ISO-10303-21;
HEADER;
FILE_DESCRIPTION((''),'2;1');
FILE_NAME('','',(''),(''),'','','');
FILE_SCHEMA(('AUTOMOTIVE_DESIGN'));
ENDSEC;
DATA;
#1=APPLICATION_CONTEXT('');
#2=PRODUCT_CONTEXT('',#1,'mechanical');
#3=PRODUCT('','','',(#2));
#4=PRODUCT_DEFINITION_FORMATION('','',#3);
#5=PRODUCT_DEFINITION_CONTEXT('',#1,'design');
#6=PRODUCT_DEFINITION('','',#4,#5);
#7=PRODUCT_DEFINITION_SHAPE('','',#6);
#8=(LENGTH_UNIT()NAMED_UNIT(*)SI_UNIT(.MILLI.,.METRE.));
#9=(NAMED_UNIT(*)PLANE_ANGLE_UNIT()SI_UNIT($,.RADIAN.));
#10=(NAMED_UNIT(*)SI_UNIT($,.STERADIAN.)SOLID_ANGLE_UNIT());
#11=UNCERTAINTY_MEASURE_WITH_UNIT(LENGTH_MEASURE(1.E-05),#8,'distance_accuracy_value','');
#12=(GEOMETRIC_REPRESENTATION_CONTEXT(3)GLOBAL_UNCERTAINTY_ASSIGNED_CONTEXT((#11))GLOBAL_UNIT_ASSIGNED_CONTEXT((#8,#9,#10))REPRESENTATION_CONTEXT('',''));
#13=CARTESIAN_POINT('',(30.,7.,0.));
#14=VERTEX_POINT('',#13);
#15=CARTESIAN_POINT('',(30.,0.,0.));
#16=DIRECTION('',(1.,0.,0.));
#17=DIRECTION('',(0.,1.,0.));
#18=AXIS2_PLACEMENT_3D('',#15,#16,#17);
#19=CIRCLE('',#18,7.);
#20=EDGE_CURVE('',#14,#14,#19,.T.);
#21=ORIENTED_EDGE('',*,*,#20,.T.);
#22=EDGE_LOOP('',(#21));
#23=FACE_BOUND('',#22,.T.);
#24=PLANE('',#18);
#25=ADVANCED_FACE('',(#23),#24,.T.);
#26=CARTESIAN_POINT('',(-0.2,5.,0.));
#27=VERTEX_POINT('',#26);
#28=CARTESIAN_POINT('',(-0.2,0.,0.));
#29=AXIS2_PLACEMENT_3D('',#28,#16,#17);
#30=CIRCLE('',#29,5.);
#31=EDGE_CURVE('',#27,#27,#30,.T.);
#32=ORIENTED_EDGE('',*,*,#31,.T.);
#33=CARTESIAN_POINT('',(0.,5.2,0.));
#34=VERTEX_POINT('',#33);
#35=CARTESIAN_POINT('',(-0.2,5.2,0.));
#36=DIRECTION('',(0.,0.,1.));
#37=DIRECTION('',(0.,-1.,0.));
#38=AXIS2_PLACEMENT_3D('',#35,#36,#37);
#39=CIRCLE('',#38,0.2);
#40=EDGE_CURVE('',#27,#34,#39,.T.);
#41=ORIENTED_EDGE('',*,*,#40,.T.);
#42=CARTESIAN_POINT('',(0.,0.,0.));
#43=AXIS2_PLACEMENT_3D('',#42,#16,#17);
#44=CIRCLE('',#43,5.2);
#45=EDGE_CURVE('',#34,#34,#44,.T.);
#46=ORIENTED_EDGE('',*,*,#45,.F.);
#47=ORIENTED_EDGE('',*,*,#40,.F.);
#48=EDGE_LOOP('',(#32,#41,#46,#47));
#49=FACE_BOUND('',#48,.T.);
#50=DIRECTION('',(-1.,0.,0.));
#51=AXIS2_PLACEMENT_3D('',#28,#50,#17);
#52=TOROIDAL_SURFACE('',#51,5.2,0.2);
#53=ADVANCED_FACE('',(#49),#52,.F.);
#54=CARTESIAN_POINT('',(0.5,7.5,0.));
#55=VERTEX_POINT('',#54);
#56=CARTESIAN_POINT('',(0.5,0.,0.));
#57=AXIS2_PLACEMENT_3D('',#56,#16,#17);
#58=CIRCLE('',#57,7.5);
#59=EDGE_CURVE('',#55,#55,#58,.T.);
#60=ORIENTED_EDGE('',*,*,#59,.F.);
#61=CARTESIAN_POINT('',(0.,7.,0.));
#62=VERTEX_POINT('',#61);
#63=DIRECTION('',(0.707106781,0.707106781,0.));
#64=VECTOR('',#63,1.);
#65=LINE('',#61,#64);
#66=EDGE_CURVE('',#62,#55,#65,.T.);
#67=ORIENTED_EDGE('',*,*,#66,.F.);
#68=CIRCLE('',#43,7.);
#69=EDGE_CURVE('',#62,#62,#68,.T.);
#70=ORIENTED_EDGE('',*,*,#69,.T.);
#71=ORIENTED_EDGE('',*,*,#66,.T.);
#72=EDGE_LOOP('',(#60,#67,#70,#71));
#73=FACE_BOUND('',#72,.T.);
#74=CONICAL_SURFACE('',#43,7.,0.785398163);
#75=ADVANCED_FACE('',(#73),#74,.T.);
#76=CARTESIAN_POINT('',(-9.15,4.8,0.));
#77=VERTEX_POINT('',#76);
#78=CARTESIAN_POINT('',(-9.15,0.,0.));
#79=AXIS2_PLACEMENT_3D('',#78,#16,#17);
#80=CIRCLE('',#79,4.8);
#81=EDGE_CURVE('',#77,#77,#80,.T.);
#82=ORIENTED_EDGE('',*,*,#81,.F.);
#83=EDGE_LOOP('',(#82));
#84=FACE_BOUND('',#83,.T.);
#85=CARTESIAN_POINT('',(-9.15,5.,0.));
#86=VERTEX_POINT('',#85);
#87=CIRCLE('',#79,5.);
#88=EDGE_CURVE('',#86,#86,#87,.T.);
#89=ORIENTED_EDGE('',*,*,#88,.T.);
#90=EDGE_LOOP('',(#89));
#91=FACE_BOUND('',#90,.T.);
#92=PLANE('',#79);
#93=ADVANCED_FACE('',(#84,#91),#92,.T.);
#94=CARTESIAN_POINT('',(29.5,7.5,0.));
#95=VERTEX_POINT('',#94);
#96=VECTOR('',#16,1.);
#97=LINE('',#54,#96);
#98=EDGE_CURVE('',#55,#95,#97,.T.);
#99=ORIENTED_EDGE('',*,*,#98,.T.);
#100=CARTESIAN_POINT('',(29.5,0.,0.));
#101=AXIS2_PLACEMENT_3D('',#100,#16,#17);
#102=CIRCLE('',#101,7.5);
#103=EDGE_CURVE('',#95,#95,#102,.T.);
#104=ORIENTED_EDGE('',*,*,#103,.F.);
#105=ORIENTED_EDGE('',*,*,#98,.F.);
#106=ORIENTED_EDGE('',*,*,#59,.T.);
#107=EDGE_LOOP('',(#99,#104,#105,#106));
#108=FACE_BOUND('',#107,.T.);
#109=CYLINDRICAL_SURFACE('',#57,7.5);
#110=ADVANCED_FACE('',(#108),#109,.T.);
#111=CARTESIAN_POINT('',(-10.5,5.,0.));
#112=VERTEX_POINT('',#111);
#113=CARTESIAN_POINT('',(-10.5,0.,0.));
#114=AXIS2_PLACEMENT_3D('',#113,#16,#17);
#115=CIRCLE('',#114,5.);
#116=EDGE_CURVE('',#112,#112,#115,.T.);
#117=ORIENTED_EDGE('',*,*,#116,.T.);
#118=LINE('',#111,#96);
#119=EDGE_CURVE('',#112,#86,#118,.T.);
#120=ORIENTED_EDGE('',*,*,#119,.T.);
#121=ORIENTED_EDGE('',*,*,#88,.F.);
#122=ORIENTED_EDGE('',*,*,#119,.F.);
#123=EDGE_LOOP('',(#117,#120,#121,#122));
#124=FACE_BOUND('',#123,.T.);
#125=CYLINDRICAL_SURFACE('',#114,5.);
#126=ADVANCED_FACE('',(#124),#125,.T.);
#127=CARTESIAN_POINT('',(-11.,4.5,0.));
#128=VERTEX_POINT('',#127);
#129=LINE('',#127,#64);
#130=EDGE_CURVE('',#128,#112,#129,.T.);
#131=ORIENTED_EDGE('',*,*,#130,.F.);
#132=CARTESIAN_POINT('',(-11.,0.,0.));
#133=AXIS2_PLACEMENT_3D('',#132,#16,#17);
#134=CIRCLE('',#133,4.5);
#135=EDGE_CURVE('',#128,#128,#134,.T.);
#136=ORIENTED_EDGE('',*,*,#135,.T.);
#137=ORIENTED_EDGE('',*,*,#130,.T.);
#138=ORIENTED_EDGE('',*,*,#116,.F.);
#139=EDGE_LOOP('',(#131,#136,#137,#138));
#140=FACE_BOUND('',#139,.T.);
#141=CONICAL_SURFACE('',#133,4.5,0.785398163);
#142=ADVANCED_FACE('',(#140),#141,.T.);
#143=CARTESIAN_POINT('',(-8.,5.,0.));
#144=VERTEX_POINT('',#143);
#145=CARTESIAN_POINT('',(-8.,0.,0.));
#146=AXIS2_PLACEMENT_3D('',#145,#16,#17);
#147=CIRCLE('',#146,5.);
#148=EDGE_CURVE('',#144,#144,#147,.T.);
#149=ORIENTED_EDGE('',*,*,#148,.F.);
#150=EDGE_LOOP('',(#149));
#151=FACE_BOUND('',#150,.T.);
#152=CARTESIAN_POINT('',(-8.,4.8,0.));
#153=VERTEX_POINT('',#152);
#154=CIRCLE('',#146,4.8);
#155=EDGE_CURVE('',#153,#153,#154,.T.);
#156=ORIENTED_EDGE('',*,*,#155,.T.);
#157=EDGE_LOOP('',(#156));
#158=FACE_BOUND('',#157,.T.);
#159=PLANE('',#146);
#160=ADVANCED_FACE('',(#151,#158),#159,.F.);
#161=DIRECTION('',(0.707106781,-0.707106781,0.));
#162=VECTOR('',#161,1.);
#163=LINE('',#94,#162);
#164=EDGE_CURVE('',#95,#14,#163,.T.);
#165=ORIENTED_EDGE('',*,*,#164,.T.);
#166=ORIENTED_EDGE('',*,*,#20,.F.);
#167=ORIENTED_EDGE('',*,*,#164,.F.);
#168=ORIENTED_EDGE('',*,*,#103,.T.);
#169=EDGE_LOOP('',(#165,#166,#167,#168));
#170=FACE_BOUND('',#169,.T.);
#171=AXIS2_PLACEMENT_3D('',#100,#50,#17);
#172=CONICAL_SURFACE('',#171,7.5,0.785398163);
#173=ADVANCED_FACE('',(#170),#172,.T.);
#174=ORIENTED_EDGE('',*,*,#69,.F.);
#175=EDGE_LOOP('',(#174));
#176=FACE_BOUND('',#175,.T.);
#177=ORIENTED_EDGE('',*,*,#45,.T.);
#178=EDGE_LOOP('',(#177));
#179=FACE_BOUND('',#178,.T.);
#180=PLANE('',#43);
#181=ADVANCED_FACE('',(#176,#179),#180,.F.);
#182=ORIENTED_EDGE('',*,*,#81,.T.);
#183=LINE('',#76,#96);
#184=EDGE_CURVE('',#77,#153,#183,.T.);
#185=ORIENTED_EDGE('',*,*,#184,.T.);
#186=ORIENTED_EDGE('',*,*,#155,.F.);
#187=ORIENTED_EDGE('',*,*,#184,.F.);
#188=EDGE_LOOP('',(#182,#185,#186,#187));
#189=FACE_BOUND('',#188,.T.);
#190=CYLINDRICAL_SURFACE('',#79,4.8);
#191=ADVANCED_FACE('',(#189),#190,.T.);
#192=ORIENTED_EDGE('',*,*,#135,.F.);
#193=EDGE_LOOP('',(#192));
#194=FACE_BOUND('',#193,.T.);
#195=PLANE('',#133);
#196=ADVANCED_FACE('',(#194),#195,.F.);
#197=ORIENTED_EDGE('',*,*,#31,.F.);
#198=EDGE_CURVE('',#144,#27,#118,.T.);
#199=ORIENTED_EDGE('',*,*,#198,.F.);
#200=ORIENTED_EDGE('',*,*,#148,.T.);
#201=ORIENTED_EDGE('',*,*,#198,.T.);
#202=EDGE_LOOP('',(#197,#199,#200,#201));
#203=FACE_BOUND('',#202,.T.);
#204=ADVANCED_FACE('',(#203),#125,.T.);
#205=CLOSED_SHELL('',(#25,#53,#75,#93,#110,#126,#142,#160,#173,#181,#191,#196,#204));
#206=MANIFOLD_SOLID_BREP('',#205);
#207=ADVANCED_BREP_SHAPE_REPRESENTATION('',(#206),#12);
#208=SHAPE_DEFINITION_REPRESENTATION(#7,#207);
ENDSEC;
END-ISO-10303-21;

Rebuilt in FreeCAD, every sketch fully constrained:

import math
import FreeCAD as App
import Part
import Sketcher
from FreeCAD import Vector
Q = App.Units.Quantity

doc = App.newDocument("Part")
params = doc.addObject("Spreadsheet::Sheet", "Params")
for row, (alias, value) in enumerate([
    ("sketch1_radius", "0.2 mm"),
    ("sketch1_width", "41 mm"),
    ("sketch1_width2", "29 mm"),
    ("sketch1_height", "7 mm"),
    ("sketch1_width3", "10.3 mm"),
    ("revolution_angle", "360 deg"),
    ("sketch2_height", "15.2 mm"),
    ("sketch2_width", "1.15 mm"),
    ("groove_angle", "360 deg"),
], start=1):
    params.set(f"A{row}", alias)
    params.set(f"B{row}", "=" + value)
    params.setAlias(f"B{row}", alias)

body = doc.addObject("PartDesign::Body", "Body")

sketch1 = body.newObject("Sketcher::SketchObject", "Sketch")
sketch1.AttachmentSupport = (doc.getObject("XY_Plane"), [""])
sketch1.MapMode = "FlatFace"
sketch1.addGeometry([
    Part.LineSegment(Vector(-11, 0, 0), Vector(30, 0, 0)),
    Part.LineSegment(Vector(30, 0, 0), Vector(30, 7, 0)),
    Part.LineSegment(Vector(30, 7, 0), Vector(29.5, 7.5, 0)),
    Part.LineSegment(Vector(29.5, 7.5, 0), Vector(0.5, 7.5, 0)),
    Part.LineSegment(Vector(0.5, 7.5, 0), Vector(0, 7, 0)),
    Part.LineSegment(Vector(0, 7, 0), Vector(0, 5.2, 0)),
    Part.ArcOfCircle(Part.Circle(Vector(-0.2, 5.2, 0), Vector(0, 0, 1), 0.2), math.radians(-90), math.radians(0)),
    Part.LineSegment(Vector(-0.2, 5, 0), Vector(-10.5, 5, 0)),
    Part.LineSegment(Vector(-10.5, 5, 0), Vector(-11, 4.5, 0)),
    Part.LineSegment(Vector(-11, 4.5, 0), Vector(-11, 0, 0)),
], False)
sketch1.addConstraint([
    Sketcher.Constraint("Coincident", 0, 2, 1, 1),
    Sketcher.Constraint("Coincident", 1, 2, 2, 1),
    Sketcher.Constraint("Coincident", 2, 2, 3, 1),
    Sketcher.Constraint("Coincident", 3, 2, 4, 1),
    Sketcher.Constraint("Coincident", 4, 2, 5, 1),
    Sketcher.Constraint("Tangent", 5, 2, 6, 2),
    Sketcher.Constraint("Tangent", 6, 1, 7, 1),
    Sketcher.Constraint("Coincident", 7, 2, 8, 1),
    Sketcher.Constraint("Coincident", 8, 2, 9, 1),
    Sketcher.Constraint("Coincident", 9, 2, 0, 1),
    Sketcher.Constraint("Horizontal", 0),
    Sketcher.Constraint("Vertical", 1),
    Sketcher.Constraint("Horizontal", 3),
    Sketcher.Constraint("Vertical", 5),
    Sketcher.Constraint("Horizontal", 7),
    Sketcher.Constraint("Vertical", 9),
    Sketcher.Constraint("PointOnObject", 0, 2, -1),
    Sketcher.Constraint("PointOnObject", 4, 2, -2),
    Sketcher.Constraint("Perpendicular", 2, 4),
    Sketcher.Constraint("Parallel", 4, 8),
    Sketcher.Constraint("Horizontal", 1, 2, 4, 2),
    Sketcher.Constraint("Equal", 2, 4),
    Sketcher.Constraint("Equal", 4, 8),
    Sketcher.Constraint("Radius", 6, Q("0.2 mm")),
    Sketcher.Constraint("DistanceX", 0, 1, 0, 2, Q("41 mm")),
    Sketcher.Constraint("DistanceX", 3, 2, 3, 1, Q("29 mm")),
    Sketcher.Constraint("DistanceY", 1, 1, 1, 2, Q("7 mm")),
    Sketcher.Constraint("DistanceX", 7, 2, 7, 1, Q("10.3 mm")),
    Sketcher.Constraint("DistanceY", 5, 2, 5, 1, Q("1.8 mm")),
])
sketch1.setExpression("Constraints[23]", "Params.sketch1_radius")
sketch1.setExpression("Constraints[24]", "Params.sketch1_width")
sketch1.setExpression("Constraints[25]", "Params.sketch1_width2")
sketch1.setExpression("Constraints[26]", "Params.sketch1_height")
sketch1.setExpression("Constraints[27]", "Params.sketch1_width3")
revolution = body.newObject("PartDesign::Revolution", "Revolution")
revolution.Profile = sketch1
revolution.ReferenceAxis = (sketch1, ["H_Axis"])
revolution.setExpression("Angle", "Params.revolution_angle")

sketch2 = body.newObject("Sketcher::SketchObject", "Sketch001")
sketch2.AttachmentSupport = (doc.getObject("XY_Plane"), [""])
sketch2.MapMode = "FlatFace"
sketch2.addGeometry([
    Part.LineSegment(Vector(-9.2, 20, 0), Vector(-9.2, 4.8, 0)),
    Part.LineSegment(Vector(-9.2, 4.8, 0), Vector(-8, 4.8, 0)),
    Part.LineSegment(Vector(-8, 4.8, 0), Vector(-8, 20, 0)),
    Part.LineSegment(Vector(-8, 20, 0), Vector(-9.2, 20, 0)),
], False)
sketch2.addConstraint([
    Sketcher.Constraint("Coincident", 0, 2, 1, 1),
    Sketcher.Constraint("Coincident", 1, 2, 2, 1),
    Sketcher.Constraint("Coincident", 2, 2, 3, 1),
    Sketcher.Constraint("Coincident", 3, 2, 0, 1),
    Sketcher.Constraint("Vertical", 0),
    Sketcher.Constraint("Horizontal", 1),
    Sketcher.Constraint("Vertical", 2),
    Sketcher.Constraint("Horizontal", 3),
    Sketcher.Constraint("DistanceY", 0, 2, 0, 1, Q("15.2 mm")),
    Sketcher.Constraint("DistanceX", 1, 2, -1, 1, Q("8 mm")),
    Sketcher.Constraint("DistanceY", -1, 1, 2, 2, Q("20 mm")),
    Sketcher.Constraint("DistanceX", 1, 1, 1, 2, Q("1.15 mm")),
])
sketch2.setExpression("Constraints[8]", "Params.sketch2_height")
sketch2.setExpression("Constraints[11]", "Params.sketch2_width")
groove = body.newObject("PartDesign::Groove", "Groove")
groove.Profile = sketch2
groove.ReferenceAxis = (sketch2, ["H_Axis"])
groove.setExpression("Angle", "Params.groove_angle")

doc.recompute()
